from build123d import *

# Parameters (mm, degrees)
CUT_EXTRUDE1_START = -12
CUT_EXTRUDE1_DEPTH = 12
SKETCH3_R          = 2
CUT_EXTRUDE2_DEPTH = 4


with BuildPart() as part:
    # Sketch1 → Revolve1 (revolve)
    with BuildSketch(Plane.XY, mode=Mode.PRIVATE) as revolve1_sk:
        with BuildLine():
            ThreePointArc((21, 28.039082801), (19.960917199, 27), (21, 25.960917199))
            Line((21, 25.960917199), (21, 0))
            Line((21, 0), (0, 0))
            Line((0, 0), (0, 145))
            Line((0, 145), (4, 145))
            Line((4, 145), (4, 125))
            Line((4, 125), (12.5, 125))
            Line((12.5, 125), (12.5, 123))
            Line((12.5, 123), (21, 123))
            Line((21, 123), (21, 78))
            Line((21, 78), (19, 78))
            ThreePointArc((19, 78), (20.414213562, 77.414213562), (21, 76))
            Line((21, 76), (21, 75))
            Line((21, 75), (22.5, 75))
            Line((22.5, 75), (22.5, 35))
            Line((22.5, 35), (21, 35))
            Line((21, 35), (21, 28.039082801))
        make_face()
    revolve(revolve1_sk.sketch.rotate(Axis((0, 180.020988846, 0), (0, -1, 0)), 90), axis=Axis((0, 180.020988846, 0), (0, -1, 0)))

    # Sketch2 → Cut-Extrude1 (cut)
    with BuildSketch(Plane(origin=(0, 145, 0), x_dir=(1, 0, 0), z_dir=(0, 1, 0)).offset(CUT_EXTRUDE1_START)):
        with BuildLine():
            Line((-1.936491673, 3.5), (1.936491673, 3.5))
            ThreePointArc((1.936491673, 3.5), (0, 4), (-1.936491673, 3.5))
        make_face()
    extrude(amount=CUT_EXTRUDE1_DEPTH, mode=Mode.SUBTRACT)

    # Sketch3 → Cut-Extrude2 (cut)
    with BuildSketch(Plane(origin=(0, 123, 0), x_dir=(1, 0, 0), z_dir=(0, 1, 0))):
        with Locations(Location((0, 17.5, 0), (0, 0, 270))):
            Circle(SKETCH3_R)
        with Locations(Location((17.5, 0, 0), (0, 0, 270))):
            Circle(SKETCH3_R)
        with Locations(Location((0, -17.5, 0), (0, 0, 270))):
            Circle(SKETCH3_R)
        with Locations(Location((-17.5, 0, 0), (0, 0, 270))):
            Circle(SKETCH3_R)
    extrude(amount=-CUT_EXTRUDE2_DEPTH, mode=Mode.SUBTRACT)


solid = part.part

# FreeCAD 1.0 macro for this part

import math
import FreeCAD as App
import Part
import Sketcher
from FreeCAD import Vector

doc = App.newDocument("Part")
body = doc.addObject("PartDesign::Body", "Body")

sketch1 = doc.addObject("Sketcher::SketchObject", "Sketch")
body.addObject(sketch1)
sketch1.AttachmentSupport = (doc.XY_Plane, [""])
sketch1.MapMode = "FlatFace"
sketch1.addGeometry(Part.ArcOfCircle(Part.Circle(Vector(21, 27, 0), Vector(0, 0, 1), 1.039083), math.radians(90), math.radians(270)), False)
sketch1.addGeometry(Part.LineSegment(Vector(21, 28.039083, 0), Vector(21, 35, 0)), False)
sketch1.addGeometry(Part.LineSegment(Vector(21, 35, 0), Vector(22.5, 35, 0)), False)
sketch1.addGeometry(Part.LineSegment(Vector(22.5, 35, 0), Vector(22.5, 75, 0)), False)
sketch1.addGeometry(Part.LineSegment(Vector(22.5, 75, 0), Vector(21, 75, 0)), False)
sketch1.addGeometry(Part.LineSegment(Vector(21, 75, 0), Vector(21, 76, 0)), False)
sketch1.addGeometry(Part.ArcOfCircle(Part.Circle(Vector(19, 76, 0), Vector(0, 0, 1), 2), math.radians(0), math.radians(90)), False)
sketch1.addGeometry(Part.LineSegment(Vector(19, 78, 0), Vector(21, 78, 0)), False)
sketch1.addGeometry(Part.LineSegment(Vector(21, 78, 0), Vector(21, 123, 0)), False)
sketch1.addGeometry(Part.LineSegment(Vector(21, 123, 0), Vector(12.5, 123, 0)), False)
sketch1.addGeometry(Part.LineSegment(Vector(12.5, 123, 0), Vector(12.5, 125, 0)), False)
sketch1.addGeometry(Part.LineSegment(Vector(12.5, 125, 0), Vector(4, 125, 0)), False)
sketch1.addGeometry(Part.LineSegment(Vector(4, 125, 0), Vector(4, 145, 0)), False)
sketch1.addGeometry(Part.LineSegment(Vector(4, 145, 0), Vector(0, 145, 0)), False)
sketch1.addGeometry(Part.LineSegment(Vector(0, 145, 0), Vector(0, 0, 0)), False)
sketch1.addGeometry(Part.LineSegment(Vector(0, 0, 0), Vector(21, 0, 0)), False)
sketch1.addGeometry(Part.LineSegment(Vector(21, 0, 0), Vector(21, 25.960917, 0)), False)
sketch1.addConstraint(Sketcher.Constraint("Coincident", 0, 1, 1, 1))
sketch1.addConstraint(Sketcher.Constraint("Coincident", 1, 2, 2, 1))
sketch1.addConstraint(Sketcher.Constraint("Coincident", 2, 2, 3, 1))
sketch1.addConstraint(Sketcher.Constraint("Coincident", 3, 2, 4, 1))
sketch1.addConstraint(Sketcher.Constraint("Coincident", 4, 2, 5, 1))
sketch1.addConstraint(Sketcher.Constraint("Tangent", 5, 2, 6, 1))
sketch1.addConstraint(Sketcher.Constraint("Tangent", 6, 2, 7, 1))
sketch1.addConstraint(Sketcher.Constraint("Coincident", 7, 2, 8, 1))
sketch1.addConstraint(Sketcher.Constraint("Coincident", 8, 2, 9, 1))
sketch1.addConstraint(Sketcher.Constraint("Coincident", 9, 2, 10, 1))
sketch1.addConstraint(Sketcher.Constraint("Coincident", 10, 2, 11, 1))
sketch1.addConstraint(Sketcher.Constraint("Coincident", 11, 2, 12, 1))
sketch1.addConstraint(Sketcher.Constraint("Coincident", 12, 2, 13, 1))
sketch1.addConstraint(Sketcher.Constraint("Coincident", 13, 2, 14, 1))
sketch1.addConstraint(Sketcher.Constraint("Coincident", 14, 2, 15, 1))
sketch1.addConstraint(Sketcher.Constraint("Coincident", 15, 2, 16, 1))
sketch1.addConstraint(Sketcher.Constraint("Coincident", 16, 2, 0, 2))
sketch1.addConstraint(Sketcher.Constraint("Vertical", 1))
sketch1.addConstraint(Sketcher.Constraint("Horizontal", 2))
sketch1.addConstraint(Sketcher.Constraint("Vertical", 3))
sketch1.addConstraint(Sketcher.Constraint("Horizontal", 4))
sketch1.addConstraint(Sketcher.Constraint("Vertical", 5))
sketch1.addConstraint(Sketcher.Constraint("Horizontal", 7))
sketch1.addConstraint(Sketcher.Constraint("Vertical", 8))
sketch1.addConstraint(Sketcher.Constraint("Horizontal", 9))
sketch1.addConstraint(Sketcher.Constraint("Vertical", 10))
sketch1.addConstraint(Sketcher.Constraint("Horizontal", 11))
sketch1.addConstraint(Sketcher.Constraint("Vertical", 12))
sketch1.addConstraint(Sketcher.Constraint("Horizontal", 13))
sketch1.addConstraint(Sketcher.Constraint("Vertical", 14))
sketch1.addConstraint(Sketcher.Constraint("Horizontal", 15))
sketch1.addConstraint(Sketcher.Constraint("Vertical", 16))
sketch1.addConstraint(Sketcher.Constraint("Coincident", 14, 2, -1, 1))
sketch1.addConstraint(Sketcher.Constraint("Vertical", 1, 2, 4, 2))
sketch1.addConstraint(Sketcher.Constraint("Vertical", 5, 2, 7, 2))
sketch1.addConstraint(Sketcher.Constraint("Vertical", 8, 2, 15, 2))
sketch1.addConstraint(Sketcher.Constraint("Equal", 9, 11))
sketch1.addConstraint(Sketcher.Constraint("Equal", 7, 10))
sketch1.addConstraint(Sketcher.Constraint("Radius", 6, 2.0))
sketch1.addConstraint(Sketcher.Constraint("DistanceX", 13, 2, 13, 1, 4.0))
sketch1.addConstraint(Sketcher.Constraint("DistanceX", 15, 1, 15, 2, 21.0))
sketch1.addConstraint(Sketcher.Constraint("DistanceY", 3, 1, 3, 2, 40.0))
sketch1.addConstraint(Sketcher.Constraint("DistanceY", 5, 1, 5, 2, 1.0))
sketch1.addConstraint(Sketcher.Constraint("DistanceY", 8, 1, 8, 2, 45.0))
sketch1.addConstraint(Sketcher.Constraint("DistanceY", 12, 1, 12, 2, 20.0))
sketch1.addConstraint(Sketcher.Constraint("DistanceY", 14, 2, 14, 1, 145.0))
sketch1.addConstraint(Sketcher.Constraint("DistanceX", 2, 1, 2, 2, 1.5))
sketch1.addConstraint(Sketcher.Constraint("DistanceX", -1, 1, 0, 3, 21.0))
sketch1.addConstraint(Sketcher.Constraint("DistanceY", -1, 1, 0, 3, 27.0))
sketch1.addConstraint(Sketcher.Constraint("Radius", 0, 1.039083))
revolution = doc.addObject("PartDesign::Revolution", "Revolution")
body.addObject(revolution)
revolution.Profile = sketch1
revolution.ReferenceAxis = (sketch1, ["V_Axis"])
revolution.Angle = 360

sketch2 = doc.addObject("Sketcher::SketchObject", "Sketch001")
body.addObject(sketch2)
sketch2.AttachmentSupport = (doc.XZ_Plane, [""])
sketch2.MapMode = "FlatFace"
sketch2.AttachmentOffset = App.Placement(Vector(0, 0, -133), App.Rotation())
sketch2.addGeometry(Part.LineSegment(Vector(-1.936492, -3.5, 0), Vector(1.936492, -3.5, 0)), False)
sketch2.addGeometry(Part.ArcOfCircle(Part.Circle(Vector(0, 0, 0), Vector(0, 0, 1), 4), math.radians(-118.955024), math.radians(-61.044976)), False)
sketch2.addConstraint(Sketcher.Constraint("Coincident", 0, 1, 1, 1))
sketch2.addConstraint(Sketcher.Constraint("Coincident", 1, 2, 0, 2))
sketch2.addConstraint(Sketcher.Constraint("Horizontal", 0))
sketch2.addConstraint(Sketcher.Constraint("Coincident", 1, 3, -1, 1))
sketch2.addConstraint(Sketcher.Constraint("Radius", 1, 4.0))
sketch2.addConstraint(Sketcher.Constraint("DistanceY", 0, 1, -1, 1, 3.5))
pocket1 = doc.addObject("PartDesign::Pocket", "Pocket")
body.addObject(pocket1)
pocket1.Profile = sketch2
pocket1.Length = 12

sketch3 = doc.addObject("Sketcher::SketchObject", "Sketch002")
body.addObject(sketch3)
sketch3.AttachmentSupport = (doc.XZ_Plane, [""])
sketch3.MapMode = "FlatFace"
sketch3.AttachmentOffset = App.Placement(Vector(0, 0, -123), App.Rotation())
sketch3.addGeometry(Part.Circle(Vector(0, -17.5, 0), Vector(0, 0, 1), 2), False)
sketch3.addGeometry(Part.Circle(Vector(17.5, 0, 0), Vector(0, 0, 1), 2), False)
sketch3.addGeometry(Part.Circle(Vector(0, 17.5, 0), Vector(0, 0, 1), 2), False)
sketch3.addGeometry(Part.Circle(Vector(-17.5, 0, 0), Vector(0, 0, 1), 2), False)
sketch3.addConstraint(Sketcher.Constraint("Equal", 0, 1))
sketch3.addConstraint(Sketcher.Constraint("Equal", 1, 2))
sketch3.addConstraint(Sketcher.Constraint("Equal", 2, 3))
sketch3.addConstraint(Sketcher.Constraint("Symmetric", 0, 3, 2, 3, -1, 1))
sketch3.addConstraint(Sketcher.Constraint("Symmetric", 1, 3, 3, 3, -1, 1))
sketch3.addConstraint(Sketcher.Constraint("PointOnObject", 0, 3, -2))
sketch3.addConstraint(Sketcher.Constraint("PointOnObject", 1, 3, -1))
sketch3.addConstraint(Sketcher.Constraint("Diameter", 0, 4.0))
sketch3.addConstraint(Sketcher.Constraint("DistanceY", 0, 3, 2, 3, 35.0))
sketch3.addConstraint(Sketcher.Constraint("DistanceX", 3, 3, 1, 3, 35.0))
pocket2 = doc.addObject("PartDesign::Pocket", "Pocket001")
body.addObject(pocket2)
pocket2.Profile = sketch3
pocket2.Length = 4
pocket2.Reversed = True

doc.recompute()
